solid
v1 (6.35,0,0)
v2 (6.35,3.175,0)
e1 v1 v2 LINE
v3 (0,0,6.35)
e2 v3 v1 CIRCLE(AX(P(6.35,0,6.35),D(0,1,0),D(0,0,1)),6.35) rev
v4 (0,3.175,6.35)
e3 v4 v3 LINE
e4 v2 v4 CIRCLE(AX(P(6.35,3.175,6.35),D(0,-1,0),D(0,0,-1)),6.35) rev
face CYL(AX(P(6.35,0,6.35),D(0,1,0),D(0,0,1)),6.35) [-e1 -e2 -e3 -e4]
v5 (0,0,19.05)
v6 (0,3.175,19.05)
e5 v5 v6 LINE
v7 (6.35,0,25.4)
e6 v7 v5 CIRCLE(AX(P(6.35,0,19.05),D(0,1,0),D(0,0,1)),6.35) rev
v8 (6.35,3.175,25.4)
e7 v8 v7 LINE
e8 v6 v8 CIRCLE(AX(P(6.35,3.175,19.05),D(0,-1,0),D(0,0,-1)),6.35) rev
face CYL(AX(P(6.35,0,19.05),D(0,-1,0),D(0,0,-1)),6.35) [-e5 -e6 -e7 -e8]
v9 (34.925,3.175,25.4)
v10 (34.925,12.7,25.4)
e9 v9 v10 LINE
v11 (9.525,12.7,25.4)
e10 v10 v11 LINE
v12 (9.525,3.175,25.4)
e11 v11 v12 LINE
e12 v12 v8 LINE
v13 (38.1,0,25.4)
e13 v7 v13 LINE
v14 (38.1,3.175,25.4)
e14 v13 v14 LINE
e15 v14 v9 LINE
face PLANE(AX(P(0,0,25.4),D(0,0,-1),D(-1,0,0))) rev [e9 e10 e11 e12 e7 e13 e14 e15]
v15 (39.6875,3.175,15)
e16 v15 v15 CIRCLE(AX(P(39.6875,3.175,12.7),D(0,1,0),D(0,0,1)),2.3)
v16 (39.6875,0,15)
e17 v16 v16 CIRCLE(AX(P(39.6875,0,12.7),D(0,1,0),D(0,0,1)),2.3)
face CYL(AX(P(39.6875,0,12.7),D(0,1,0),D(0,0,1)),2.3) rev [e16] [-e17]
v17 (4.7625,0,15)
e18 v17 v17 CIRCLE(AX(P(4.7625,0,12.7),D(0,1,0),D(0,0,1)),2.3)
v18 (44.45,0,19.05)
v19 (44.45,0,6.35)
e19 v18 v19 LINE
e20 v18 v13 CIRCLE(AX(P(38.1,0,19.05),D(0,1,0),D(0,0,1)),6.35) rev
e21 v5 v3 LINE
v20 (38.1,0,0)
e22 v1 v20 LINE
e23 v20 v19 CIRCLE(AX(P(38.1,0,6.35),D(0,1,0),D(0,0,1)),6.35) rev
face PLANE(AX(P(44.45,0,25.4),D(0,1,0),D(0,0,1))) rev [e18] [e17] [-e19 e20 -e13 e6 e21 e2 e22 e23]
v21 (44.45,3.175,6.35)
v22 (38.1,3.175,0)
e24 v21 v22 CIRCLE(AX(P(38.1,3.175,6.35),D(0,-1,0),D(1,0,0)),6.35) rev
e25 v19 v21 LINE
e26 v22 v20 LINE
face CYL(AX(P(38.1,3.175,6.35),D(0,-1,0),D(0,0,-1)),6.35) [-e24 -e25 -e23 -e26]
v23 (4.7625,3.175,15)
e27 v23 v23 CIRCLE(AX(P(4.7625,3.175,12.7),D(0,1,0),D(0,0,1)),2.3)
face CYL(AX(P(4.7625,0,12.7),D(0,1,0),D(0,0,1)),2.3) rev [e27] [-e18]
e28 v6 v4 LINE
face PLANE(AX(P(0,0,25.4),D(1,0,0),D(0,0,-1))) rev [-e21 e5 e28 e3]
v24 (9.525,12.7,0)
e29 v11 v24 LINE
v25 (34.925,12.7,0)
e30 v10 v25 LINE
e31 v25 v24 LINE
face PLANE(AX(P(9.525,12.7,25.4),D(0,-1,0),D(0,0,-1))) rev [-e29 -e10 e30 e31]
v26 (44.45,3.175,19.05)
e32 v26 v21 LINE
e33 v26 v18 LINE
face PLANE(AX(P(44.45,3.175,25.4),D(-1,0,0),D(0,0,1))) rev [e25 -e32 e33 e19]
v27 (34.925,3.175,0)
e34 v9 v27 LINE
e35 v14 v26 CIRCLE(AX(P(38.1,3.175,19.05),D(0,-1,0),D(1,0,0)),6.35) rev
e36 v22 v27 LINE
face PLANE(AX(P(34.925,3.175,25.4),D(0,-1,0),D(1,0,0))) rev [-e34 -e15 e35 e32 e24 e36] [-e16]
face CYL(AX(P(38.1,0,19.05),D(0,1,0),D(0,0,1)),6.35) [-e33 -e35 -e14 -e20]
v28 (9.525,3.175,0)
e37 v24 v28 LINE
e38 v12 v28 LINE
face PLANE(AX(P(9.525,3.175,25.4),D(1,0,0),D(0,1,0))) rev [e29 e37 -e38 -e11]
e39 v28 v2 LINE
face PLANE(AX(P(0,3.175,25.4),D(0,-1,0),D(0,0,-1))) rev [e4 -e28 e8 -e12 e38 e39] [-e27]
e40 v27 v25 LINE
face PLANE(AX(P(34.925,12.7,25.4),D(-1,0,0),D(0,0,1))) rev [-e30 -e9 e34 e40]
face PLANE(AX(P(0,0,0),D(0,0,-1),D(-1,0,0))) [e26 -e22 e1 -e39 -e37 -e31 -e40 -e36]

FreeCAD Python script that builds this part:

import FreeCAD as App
import Part
import Sketcher
from FreeCAD import Vector
Q = App.Units.Quantity


def edges_at(feature, points):
    """Names of the edges that pass closest to the given points."""
    edges = feature.Shape.Edges
    near = lambda p: min(range(len(edges)), key=lambda i: edges[i].distToShape(Part.Vertex(*p))[0])
    return sorted({f"Edge{near(p) + 1}" for p in points})


def add_polygon(sketch, points):
    """Adds a closed chain of lines whose ends are joined by coincident constraints."""
    first, n = sketch.GeometryCount, len(points)
    for a, b in zip(points, points[1:] + points[:1]):
        sketch.addGeometry(Part.LineSegment(App.Vector(*a, 0), App.Vector(*b, 0)), False)
    for i in range(n):
        sketch.addConstraint(Sketcher.Constraint("Coincident", first + i, 2, first + (i + 1) % n, 1))

doc = App.newDocument("Part")
params = doc.addObject("Spreadsheet::Sheet", "Params")
for row, (alias, value) in enumerate([
    ("sketch1_width", "1 in"),
    ("sketch1_width2", "1.75 in"),
    ("pad1_length", "1 in"),
    ("fillet_radius", "0.25 in"),
], start=1):
    params.set(f"A{row}", alias)
    params.set(f"B{row}", "=" + value)
    params.setAlias(f"B{row}", alias)

body = doc.addObject("PartDesign::Body", "Body")

sketch1 = doc.addObject("Sketcher::SketchObject", "Sketch")
body.addObject(sketch1)
sketch1.AttachmentSupport = (doc.XY_Plane, [""])
sketch1.MapMode = "FlatFace"
add_polygon(sketch1, [(0, 3.2), (0, 0), (44.5, 0), (44.5, 3.2), (34.9, 3.2), (34.9, 12.7), (9.5, 12.7), (9.5, 3.2)])
sketch1.addConstraint([
    Sketcher.Constraint("Vertical", 0),
    Sketcher.Constraint("Horizontal", 1),
    Sketcher.Constraint("Vertical", 2),
    Sketcher.Constraint("Horizontal", 3),
    Sketcher.Constraint("Vertical", 4),
    Sketcher.Constraint("Horizontal", 5),
    Sketcher.Constraint("Vertical", 6),
    Sketcher.Constraint("Horizontal", 7),
    Sketcher.Constraint("Coincident", 0, 2, -1, 1),
    Sketcher.Constraint("Horizontal", 3, 2, 6, 2),
    Sketcher.Constraint("Equal", 3, 7),
    Sketcher.Constraint("Equal", 7, 4),
    Sketcher.Constraint("DistanceX", 5, 2, 5, 1, Q("1 in")),
    Sketcher.Constraint("DistanceX", 1, 1, 1, 2, Q("1.75 in")),
    Sketcher.Constraint("DistanceY", -1, 1, 4, 2, Q("0.5 in")),
])
sketch1.setExpression("Constraints[20]", "Params.sketch1_width")
sketch1.setExpression("Constraints[21]", "Params.sketch1_width2")
pad1 = doc.addObject("PartDesign::Pad", "Pad")
body.addObject(pad1)
pad1.Profile = sketch1
pad1.setExpression("Length", "Params.pad1_length")

sketch2 = doc.addObject("Sketcher::SketchObject", "Sketch001")
body.addObject(sketch2)
sketch2.AttachmentSupport = (doc.XZ_Plane, [""])
sketch2.MapMode = "FlatFace"
sketch2.AttachmentOffset = App.Placement(Vector(0, 0, -0.125 * 25.4), App.Rotation())
sketch2.addGeometry([
    Part.Circle(Vector(4.8, 12.7, 0), Vector(0, 0, 1), 2.3),
    Part.Circle(Vector(39.7, 12.7, 0), Vector(0, 0, 1), 2.3),
], False)
sketch2.addConstraint([
    Sketcher.Constraint("Equal", 0, 1),
    Sketcher.Constraint("Horizontal", 0, 3, 1, 3),
    Sketcher.Constraint("DistanceY", -1, 1, 0, 3, Q("0.5 in")),
    Sketcher.Constraint("Diameter", 0, Q("4.6 mm")),
    Sketcher.Constraint("DistanceX", -1, 1, 0, 3, Q("0.1875 in")),
    Sketcher.Constraint("DistanceX", -1, 1, 1, 3, Q("1.5625 in")),
])
pocket1 = doc.addObject("PartDesign::Pocket", "Pocket")
body.addObject(pocket1)
pocket1.Profile = sketch2
pocket1.Type = "ThroughAll"
pocket1.Midplane = True
doc.recompute()

fillet = doc.addObject("PartDesign::Fillet", "Fillet")
body.addObject(fillet)
fillet.Base = (pocket1, edges_at(pocket1, [
    (44.45, 1.587, 0),
    (0, 1.587, 25.4),
    (0, 1.587, 0),
    (44.45, 1.587, 25.4),
]))
fillet.setExpression("Radius", "Params.fillet_radius")

doc.recompute()
